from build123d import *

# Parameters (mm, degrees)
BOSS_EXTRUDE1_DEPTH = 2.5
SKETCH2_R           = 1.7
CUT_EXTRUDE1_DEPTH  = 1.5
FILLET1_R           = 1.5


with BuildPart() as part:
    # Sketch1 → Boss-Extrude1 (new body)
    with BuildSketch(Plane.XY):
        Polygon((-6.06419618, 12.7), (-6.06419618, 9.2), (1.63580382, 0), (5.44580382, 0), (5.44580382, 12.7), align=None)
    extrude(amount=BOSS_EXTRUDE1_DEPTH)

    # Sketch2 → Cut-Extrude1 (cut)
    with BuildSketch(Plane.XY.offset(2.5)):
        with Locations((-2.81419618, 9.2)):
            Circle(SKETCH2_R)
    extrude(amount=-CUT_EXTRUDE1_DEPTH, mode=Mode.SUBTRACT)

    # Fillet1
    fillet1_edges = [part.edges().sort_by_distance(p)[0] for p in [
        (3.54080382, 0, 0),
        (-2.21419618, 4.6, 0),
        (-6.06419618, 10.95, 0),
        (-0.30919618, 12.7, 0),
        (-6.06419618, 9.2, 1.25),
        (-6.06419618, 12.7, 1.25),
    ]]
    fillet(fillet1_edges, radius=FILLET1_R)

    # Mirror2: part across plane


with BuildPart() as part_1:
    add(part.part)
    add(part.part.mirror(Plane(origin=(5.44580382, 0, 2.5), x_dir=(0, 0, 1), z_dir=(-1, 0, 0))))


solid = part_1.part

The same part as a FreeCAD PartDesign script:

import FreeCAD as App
import Part
import Sketcher

V = App.Vector


def edges_at(feature, points):
    """Names of the edges that pass closest to the given points."""
    edges = feature.Shape.Edges
    near = lambda p: min(range(len(edges)), key=lambda i: edges[i].distToShape(Part.Vertex(*p))[0])
    return sorted({f"Edge{near(p) + 1}" for p in points})


def add_polygon(sketch, points):
    """Adds a closed chain of lines whose ends are joined by coincident constraints."""
    first, n = sketch.GeometryCount, len(points)
    for a, b in zip(points, points[1:] + points[:1]):
        sketch.addGeometry(Part.LineSegment(App.Vector(*a, 0), App.Vector(*b, 0)), False)
    for i in range(n):
        sketch.addConstraint(Sketcher.Constraint("Coincident", first + i, 2, first + (i + 1) % n, 1))

doc = App.newDocument("Part")
body = doc.addObject("PartDesign::Body", "Body")

sketch1 = body.newObject("Sketcher::SketchObject", "Sketch")
sketch1.AttachmentSupport = (doc.getObject("XY_Plane"), [""])
sketch1.MapMode = "FlatFace"
add_polygon(sketch1, [(-6.064196, 12.7), (-6.064196, 9.2), (1.635804, 0), (5.445804, 0), (5.445804, 12.7)])
sketch1.addConstraint([
    Sketcher.Constraint("Vertical", 0),
    Sketcher.Constraint("Horizontal", 2),
    Sketcher.Constraint("Vertical", 3),
    Sketcher.Constraint("Horizontal", 4),
    Sketcher.Constraint("PointOnObject", 1, 2, -1),
    Sketcher.Constraint("DistanceY", 0, 2, 0, 1, 3.5),
    Sketcher.Constraint("DistanceY", 3, 1, 3, 2, 12.7),
    Sketcher.Constraint("DistanceX", 2, 1, 2, 2, 3.81),
    Sketcher.Constraint("DistanceX", 4, 2, 4, 1, 11.51),
    Sketcher.Constraint("DistanceX", 0, 2, -1, 1, 6.064196),
])
pad1 = body.newObject("PartDesign::Pad", "Pad")
pad1.Profile = sketch1
pad1.Length = 2.5

sketch2 = body.newObject("Sketcher::SketchObject", "Sketch001")
sketch2.AttachmentSupport = (doc.getObject("XY_Plane"), [""])
sketch2.MapMode = "FlatFace"
sketch2.AttachmentOffset = App.Placement(V(0, 0, 2.5), App.Rotation())
sketch2.addGeometry(Part.Circle(V(-2.814196, 9.2, 0), V(0, 0, 1), 1.7), False)
sketch2.addConstraint([
    Sketcher.Constraint("Diameter", 0, 3.4),
    Sketcher.Constraint("DistanceY", -1, 1, 0, 3, 9.2),
    Sketcher.Constraint("DistanceX", 0, 3, -1, 1, 2.814196),
])
pocket1 = body.newObject("PartDesign::Pocket", "Pocket")
pocket1.Profile = sketch2
pocket1.Length = 1.5
doc.recompute()

fillet = body.newObject("PartDesign::Fillet", "Fillet")
fillet.Base = (pocket1, edges_at(pocket1, [
    (3.541, 0, 0),
    (-2.214, 4.6, 0),
    (-6.064, 10.95, 0),
    (-0.309, 12.7, 0),
    (-6.064, 9.2, 1.25),
    (-6.064, 12.7, 1.25),
]))
fillet.Radius = 1.5
body2 = doc.addObject("PartDesign::Body", "Body001")
doc.recompute()

body2.BaseFeature = body
doc.recompute()

mirroring = doc.addObject("Part::Mirroring", "Mirroring")
mirroring.Source = body
mirroring.Base = V(5.445804, 0, 2.5)
mirroring.Normal = V(-1, 0, 0)
body3 = doc.addObject("PartDesign::Body", "Body002")
body3.BaseFeature = mirroring
boolean = body2.newObject("PartDesign::Boolean", "Boolean")
boolean.Type = "Fuse"
boolean.addObjects([body3])
doc.recompute()
mirroring.Visibility = False

doc.recompute()
